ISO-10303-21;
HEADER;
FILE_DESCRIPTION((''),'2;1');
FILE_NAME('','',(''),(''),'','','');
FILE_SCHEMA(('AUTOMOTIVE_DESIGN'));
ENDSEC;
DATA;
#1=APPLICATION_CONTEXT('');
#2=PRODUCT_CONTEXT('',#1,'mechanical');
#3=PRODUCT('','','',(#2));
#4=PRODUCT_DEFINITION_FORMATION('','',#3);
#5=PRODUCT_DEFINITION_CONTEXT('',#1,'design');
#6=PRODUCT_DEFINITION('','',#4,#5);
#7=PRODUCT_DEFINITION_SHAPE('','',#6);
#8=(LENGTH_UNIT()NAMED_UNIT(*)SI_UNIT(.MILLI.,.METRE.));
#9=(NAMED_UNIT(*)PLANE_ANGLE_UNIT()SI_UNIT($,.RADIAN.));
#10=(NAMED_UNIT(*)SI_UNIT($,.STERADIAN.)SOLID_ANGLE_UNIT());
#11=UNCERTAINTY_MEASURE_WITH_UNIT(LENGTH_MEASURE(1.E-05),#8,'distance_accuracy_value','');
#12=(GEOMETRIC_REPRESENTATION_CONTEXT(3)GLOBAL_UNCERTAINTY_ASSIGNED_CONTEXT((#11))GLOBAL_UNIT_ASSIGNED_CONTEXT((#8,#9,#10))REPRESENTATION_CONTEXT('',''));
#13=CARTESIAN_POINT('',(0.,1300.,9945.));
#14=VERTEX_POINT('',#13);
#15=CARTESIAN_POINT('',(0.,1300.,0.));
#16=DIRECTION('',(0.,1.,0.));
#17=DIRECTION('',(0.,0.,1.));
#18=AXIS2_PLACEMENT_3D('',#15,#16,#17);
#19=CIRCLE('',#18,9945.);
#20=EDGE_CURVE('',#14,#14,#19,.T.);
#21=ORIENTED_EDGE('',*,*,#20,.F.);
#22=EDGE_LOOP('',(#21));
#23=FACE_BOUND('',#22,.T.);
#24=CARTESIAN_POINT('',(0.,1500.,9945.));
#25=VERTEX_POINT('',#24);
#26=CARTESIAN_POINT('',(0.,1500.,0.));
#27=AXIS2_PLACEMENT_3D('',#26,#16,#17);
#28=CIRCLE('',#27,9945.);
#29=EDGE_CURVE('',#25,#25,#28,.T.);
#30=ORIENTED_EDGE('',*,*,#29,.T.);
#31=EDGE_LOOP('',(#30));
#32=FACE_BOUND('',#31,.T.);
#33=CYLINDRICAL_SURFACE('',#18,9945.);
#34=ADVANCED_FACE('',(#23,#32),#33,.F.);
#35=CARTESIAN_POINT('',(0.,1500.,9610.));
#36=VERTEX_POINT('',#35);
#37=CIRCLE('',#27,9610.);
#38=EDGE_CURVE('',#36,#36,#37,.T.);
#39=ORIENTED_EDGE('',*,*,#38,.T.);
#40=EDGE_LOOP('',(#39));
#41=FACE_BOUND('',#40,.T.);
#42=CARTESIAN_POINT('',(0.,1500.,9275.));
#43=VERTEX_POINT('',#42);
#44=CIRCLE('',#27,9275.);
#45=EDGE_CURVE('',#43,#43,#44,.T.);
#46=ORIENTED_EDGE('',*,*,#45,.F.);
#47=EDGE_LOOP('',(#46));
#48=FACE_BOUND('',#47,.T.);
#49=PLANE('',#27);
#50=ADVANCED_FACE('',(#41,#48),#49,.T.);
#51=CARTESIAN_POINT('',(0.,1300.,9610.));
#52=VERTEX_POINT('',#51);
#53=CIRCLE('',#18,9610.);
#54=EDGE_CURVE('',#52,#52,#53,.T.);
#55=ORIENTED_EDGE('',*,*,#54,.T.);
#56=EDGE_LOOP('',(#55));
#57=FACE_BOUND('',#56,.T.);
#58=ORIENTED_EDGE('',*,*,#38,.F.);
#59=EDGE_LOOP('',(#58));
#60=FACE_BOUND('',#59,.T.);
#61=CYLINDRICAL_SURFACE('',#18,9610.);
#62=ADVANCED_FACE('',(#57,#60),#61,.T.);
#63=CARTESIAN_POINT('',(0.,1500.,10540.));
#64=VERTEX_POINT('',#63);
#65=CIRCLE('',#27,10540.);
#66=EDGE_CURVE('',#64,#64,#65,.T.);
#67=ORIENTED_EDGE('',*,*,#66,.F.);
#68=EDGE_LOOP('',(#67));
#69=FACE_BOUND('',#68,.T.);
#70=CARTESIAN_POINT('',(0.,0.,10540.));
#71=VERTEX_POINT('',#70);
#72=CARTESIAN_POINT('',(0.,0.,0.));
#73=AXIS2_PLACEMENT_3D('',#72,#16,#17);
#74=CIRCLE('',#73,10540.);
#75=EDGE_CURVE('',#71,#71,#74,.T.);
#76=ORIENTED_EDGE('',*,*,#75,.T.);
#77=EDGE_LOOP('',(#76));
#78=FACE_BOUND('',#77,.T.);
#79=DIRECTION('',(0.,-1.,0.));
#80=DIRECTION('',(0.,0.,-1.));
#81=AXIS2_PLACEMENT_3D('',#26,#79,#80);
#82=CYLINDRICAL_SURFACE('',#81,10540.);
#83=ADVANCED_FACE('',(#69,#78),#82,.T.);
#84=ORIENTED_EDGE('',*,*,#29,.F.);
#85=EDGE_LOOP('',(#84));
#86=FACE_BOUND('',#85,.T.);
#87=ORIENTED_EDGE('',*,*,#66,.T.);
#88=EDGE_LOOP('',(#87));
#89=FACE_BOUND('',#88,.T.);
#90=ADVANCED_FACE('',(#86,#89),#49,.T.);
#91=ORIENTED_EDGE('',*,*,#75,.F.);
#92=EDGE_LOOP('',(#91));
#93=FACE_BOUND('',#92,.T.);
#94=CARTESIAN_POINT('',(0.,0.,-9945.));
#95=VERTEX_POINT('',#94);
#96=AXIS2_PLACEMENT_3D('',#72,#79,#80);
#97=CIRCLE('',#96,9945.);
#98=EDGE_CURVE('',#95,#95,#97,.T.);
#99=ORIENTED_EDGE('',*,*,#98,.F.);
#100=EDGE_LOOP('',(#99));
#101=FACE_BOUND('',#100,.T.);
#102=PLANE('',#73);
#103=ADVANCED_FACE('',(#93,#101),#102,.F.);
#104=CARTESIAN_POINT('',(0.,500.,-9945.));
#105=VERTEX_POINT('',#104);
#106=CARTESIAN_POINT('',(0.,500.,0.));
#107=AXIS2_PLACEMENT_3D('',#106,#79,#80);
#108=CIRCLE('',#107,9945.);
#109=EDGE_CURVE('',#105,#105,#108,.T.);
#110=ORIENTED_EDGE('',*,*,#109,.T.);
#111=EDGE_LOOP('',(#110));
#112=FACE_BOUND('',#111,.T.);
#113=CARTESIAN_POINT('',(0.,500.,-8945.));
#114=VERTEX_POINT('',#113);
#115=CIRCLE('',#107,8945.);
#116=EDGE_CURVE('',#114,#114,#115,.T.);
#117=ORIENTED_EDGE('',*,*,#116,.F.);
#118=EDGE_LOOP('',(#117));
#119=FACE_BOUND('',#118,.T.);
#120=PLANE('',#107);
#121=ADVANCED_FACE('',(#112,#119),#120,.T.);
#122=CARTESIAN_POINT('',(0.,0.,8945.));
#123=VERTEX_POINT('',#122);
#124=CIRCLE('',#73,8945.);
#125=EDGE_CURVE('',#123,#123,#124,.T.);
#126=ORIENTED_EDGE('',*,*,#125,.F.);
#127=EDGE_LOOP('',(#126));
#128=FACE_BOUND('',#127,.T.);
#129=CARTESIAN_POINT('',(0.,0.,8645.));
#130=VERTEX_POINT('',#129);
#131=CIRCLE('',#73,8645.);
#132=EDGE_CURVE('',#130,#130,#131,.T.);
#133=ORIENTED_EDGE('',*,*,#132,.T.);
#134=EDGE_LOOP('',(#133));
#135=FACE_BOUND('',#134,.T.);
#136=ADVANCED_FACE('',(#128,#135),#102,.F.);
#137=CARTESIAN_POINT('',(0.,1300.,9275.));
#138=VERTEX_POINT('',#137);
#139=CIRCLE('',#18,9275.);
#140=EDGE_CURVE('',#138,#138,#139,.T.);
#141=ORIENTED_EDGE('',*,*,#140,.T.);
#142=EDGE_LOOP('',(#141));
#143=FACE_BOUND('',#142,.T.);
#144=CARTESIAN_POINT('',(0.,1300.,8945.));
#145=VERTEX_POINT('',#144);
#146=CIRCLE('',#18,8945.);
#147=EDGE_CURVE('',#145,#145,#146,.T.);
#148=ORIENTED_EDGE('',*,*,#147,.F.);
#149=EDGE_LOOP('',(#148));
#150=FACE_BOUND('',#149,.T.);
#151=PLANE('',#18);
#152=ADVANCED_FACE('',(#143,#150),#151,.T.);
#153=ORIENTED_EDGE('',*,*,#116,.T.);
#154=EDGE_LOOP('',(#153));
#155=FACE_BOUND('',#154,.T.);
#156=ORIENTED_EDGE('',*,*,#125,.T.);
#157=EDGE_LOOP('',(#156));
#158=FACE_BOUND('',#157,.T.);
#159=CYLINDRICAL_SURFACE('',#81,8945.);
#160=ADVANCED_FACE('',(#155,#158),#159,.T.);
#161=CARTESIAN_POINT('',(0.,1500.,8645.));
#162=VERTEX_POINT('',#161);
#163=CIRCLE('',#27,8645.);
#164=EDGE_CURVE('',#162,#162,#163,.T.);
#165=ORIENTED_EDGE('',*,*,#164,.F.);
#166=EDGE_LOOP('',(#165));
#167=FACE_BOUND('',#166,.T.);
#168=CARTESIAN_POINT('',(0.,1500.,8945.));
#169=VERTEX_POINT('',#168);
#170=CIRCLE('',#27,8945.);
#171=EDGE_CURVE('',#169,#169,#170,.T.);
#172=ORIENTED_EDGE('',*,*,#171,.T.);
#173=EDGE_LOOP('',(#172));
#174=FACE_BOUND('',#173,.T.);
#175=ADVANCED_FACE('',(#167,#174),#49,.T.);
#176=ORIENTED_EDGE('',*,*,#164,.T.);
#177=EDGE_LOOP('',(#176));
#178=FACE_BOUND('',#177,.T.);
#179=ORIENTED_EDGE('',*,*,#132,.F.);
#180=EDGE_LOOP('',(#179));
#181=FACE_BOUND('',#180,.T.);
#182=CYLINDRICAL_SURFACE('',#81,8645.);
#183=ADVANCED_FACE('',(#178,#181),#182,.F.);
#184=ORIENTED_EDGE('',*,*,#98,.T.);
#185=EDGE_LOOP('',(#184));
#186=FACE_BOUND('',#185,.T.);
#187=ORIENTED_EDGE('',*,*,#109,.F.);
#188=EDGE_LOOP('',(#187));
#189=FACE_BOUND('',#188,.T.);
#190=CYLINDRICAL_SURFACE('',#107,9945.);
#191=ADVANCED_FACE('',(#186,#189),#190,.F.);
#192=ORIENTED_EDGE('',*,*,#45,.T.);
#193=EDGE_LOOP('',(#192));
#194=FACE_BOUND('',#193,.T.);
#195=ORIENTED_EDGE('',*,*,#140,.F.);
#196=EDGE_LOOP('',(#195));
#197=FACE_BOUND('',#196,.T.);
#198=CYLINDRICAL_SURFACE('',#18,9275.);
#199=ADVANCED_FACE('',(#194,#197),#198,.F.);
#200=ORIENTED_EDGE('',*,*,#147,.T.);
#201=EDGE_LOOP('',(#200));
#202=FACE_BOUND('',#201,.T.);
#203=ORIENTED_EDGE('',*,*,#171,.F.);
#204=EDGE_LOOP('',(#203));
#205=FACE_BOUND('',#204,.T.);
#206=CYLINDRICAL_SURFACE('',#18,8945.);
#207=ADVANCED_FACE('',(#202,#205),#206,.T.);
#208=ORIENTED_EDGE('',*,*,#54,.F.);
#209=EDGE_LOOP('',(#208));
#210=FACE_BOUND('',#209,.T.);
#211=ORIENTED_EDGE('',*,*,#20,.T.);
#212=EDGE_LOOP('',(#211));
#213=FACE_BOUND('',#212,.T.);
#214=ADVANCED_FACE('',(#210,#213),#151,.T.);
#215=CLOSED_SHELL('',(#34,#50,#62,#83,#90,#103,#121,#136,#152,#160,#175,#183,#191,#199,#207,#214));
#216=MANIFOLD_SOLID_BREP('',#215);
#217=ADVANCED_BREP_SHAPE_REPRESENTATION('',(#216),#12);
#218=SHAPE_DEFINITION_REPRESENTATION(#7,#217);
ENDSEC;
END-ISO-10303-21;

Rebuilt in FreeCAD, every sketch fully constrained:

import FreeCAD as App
import Part
import Sketcher

V = App.Vector

doc = App.newDocument("Part")
params = doc.addObject("Spreadsheet::Sheet", "Params")
for row, (alias, value) in enumerate([
    ("sketch1_diameter", "19890 mm"),
    ("sketch1_diameter2", "17890 mm"),
    ("pad1_length", "600 mm"),
    ("sketch2_diameter", "21080 mm"),
    ("sketch2_diameter2", "17890 mm"),
    ("pad2_length", "1500 mm"),
    ("sketch3_diameter", "19890 mm"),
    ("sketch3_diameter2", "17890 mm"),
    ("pocket1_length", "500 mm"),
    ("sketch4_diameter", "17890 mm"),
    ("sketch4_diameter2", "17290 mm"),
    ("pad3_length", "1500 mm"),
    ("sketch5_diameter", "18550 mm"),
    ("sketch5_diameter2", "17890 mm"),
    ("pocket2_length", "200 mm"),
    ("sketch6_diameter", "19890 mm"),
    ("sketch6_diameter2", "19220 mm"),
    ("pocket3_length", "200 mm"),
], start=1):
    params.set(f"A{row}", alias)
    params.set(f"B{row}", "=" + value)
    params.setAlias(f"B{row}", alias)

body = doc.addObject("PartDesign::Body", "Body")

# Sketch on XZ plane
sketch1 = body.newObject("Sketcher::SketchObject", "Sketch")
sketch1.AttachmentSupport = (doc.getObject("XZ_Plane"), [""])
sketch1.MapMode = "FlatFace"
sketch1.addGeometry([
    Part.Circle(V(0, 0, 0), V(0, 0, 1), 9945),
    Part.Circle(V(0, 0, 0), V(0, 0, 1), 8945),
], False)
sketch1.addConstraint([
    Sketcher.Constraint("Coincident", 0, 3, -1, 1),
    Sketcher.Constraint("Coincident", 1, 3, -1, 1),
    Sketcher.Constraint("Diameter", 0, 19890.0),
    Sketcher.Constraint("Diameter", 1, 17890.0),
])
sketch1.setExpression("Constraints[2]", "Params.sketch1_diameter")
sketch1.setExpression("Constraints[3]", "Params.sketch1_diameter2")
pad1 = body.newObject("PartDesign::Pad", "Pad")
pad1.Profile = sketch1
pad1.setExpression("Length", "Params.pad1_length")
pad1.Reversed = True

# Sketch on XZ plane
sketch2 = body.newObject("Sketcher::SketchObject", "Sketch001")
sketch2.AttachmentSupport = (doc.getObject("XZ_Plane"), [""])
sketch2.MapMode = "FlatFace"
sketch2.addGeometry([
    Part.Circle(V(0, 0, 0), V(0, 0, 1), 10540),
    Part.Circle(V(0, 0, 0), V(0, 0, 1), 8945),
], False)
sketch2.addConstraint([
    Sketcher.Constraint("Coincident", 0, 3, -1, 1),
    Sketcher.Constraint("Coincident", 1, 3, -1, 1),
    Sketcher.Constraint("Diameter", 0, 21080.0),
    Sketcher.Constraint("Diameter", 1, 17890.0),
])
sketch2.setExpression("Constraints[2]", "Params.sketch2_diameter")
sketch2.setExpression("Constraints[3]", "Params.sketch2_diameter2")
pad2 = body.newObject("PartDesign::Pad", "Pad001")
pad2.Profile = sketch2
pad2.setExpression("Length", "Params.pad2_length")
pad2.Reversed = True

# Sketch on XZ plane
sketch3 = body.newObject("Sketcher::SketchObject", "Sketch002")
sketch3.AttachmentSupport = (doc.getObject("XZ_Plane"), [""])
sketch3.MapMode = "FlatFace"
sketch3.addGeometry([
    Part.Circle(V(0, 0, 0), V(0, 0, 1), 9945),
    Part.Circle(V(0, 0, 0), V(0, 0, 1), 8945),
], False)
sketch3.addConstraint([
    Sketcher.Constraint("Coincident", 0, 3, -1, 1),
    Sketcher.Constraint("Coincident", 1, 3, -1, 1),
    Sketcher.Constraint("Diameter", 0, 19890.0),
    Sketcher.Constraint("Diameter", 1, 17890.0),
])
sketch3.setExpression("Constraints[2]", "Params.sketch3_diameter")
sketch3.setExpression("Constraints[3]", "Params.sketch3_diameter2")
pocket1 = body.newObject("PartDesign::Pocket", "Pocket")
pocket1.Profile = sketch3
pocket1.setExpression("Length", "Params.pocket1_length")

# Sketch on XZ plane
sketch4 = body.newObject("Sketcher::SketchObject", "Sketch003")
sketch4.AttachmentSupport = (doc.getObject("XZ_Plane"), [""])
sketch4.MapMode = "FlatFace"
sketch4.addGeometry([
    Part.Circle(V(0, 0, 0), V(0, 0, 1), 8945),
    Part.Circle(V(0, 0, 0), V(0, 0, 1), 8645),
], False)
sketch4.addConstraint([
    Sketcher.Constraint("Coincident", 0, 3, -1, 1),
    Sketcher.Constraint("Coincident", 1, 3, -1, 1),
    Sketcher.Constraint("Diameter", 0, 17890.0),
    Sketcher.Constraint("Diameter", 1, 17290.0),
])
sketch4.setExpression("Constraints[2]", "Params.sketch4_diameter")
sketch4.setExpression("Constraints[3]", "Params.sketch4_diameter2")
pad3 = body.newObject("PartDesign::Pad", "Pad002")
pad3.Profile = sketch4
pad3.setExpression("Length", "Params.pad3_length")
pad3.Reversed = True

# Sketch on XZ plane
sketch5 = body.newObject("Sketcher::SketchObject", "Sketch004")
sketch5.AttachmentSupport = (doc.getObject("XZ_Plane"), [""])
sketch5.MapMode = "FlatFace"
sketch5.AttachmentOffset = App.Placement(V(0, 0, -1300), App.Rotation())
sketch5.addGeometry([
    Part.Circle(V(0, 0, 0), V(0, 0, 1), 9275),
    Part.Circle(V(0, 0, 0), V(0, 0, 1), 8945),
], False)
sketch5.addConstraint([
    Sketcher.Constraint("Coincident", 0, 3, -1, 1),
    Sketcher.Constraint("Coincident", 1, 3, -1, 1),
    Sketcher.Constraint("Diameter", 0, 18550.0),
    Sketcher.Constraint("Diameter", 1, 17890.0),
])
sketch5.setExpression("Constraints[2]", "Params.sketch5_diameter")
sketch5.setExpression("Constraints[3]", "Params.sketch5_diameter2")
pocket2 = body.newObject("PartDesign::Pocket", "Pocket001")
pocket2.Profile = sketch5
pocket2.setExpression("Length", "Params.pocket2_length")

# Sketch on XZ plane
sketch6 = body.newObject("Sketcher::SketchObject", "Sketch005")
sketch6.AttachmentSupport = (doc.getObject("XZ_Plane"), [""])
sketch6.MapMode = "FlatFace"
sketch6.AttachmentOffset = App.Placement(V(0, 0, -1300), App.Rotation())
sketch6.addGeometry([
    Part.Circle(V(0, 0, 0), V(0, 0, 1), 9945),
    Part.Circle(V(0, 0, 0), V(0, 0, 1), 9610),
], False)
sketch6.addConstraint([
    Sketcher.Constraint("Coincident", 0, 3, -1, 1),
    Sketcher.Constraint("Coincident", 1, 3, -1, 1),
    Sketcher.Constraint("Diameter", 0, 19890.0),
    Sketcher.Constraint("Diameter", 1, 19220.0),
])
sketch6.setExpression("Constraints[2]", "Params.sketch6_diameter")
sketch6.setExpression("Constraints[3]", "Params.sketch6_diameter2")
pocket3 = body.newObject("PartDesign::Pocket", "Pocket002")
pocket3.Profile = sketch6
pocket3.setExpression("Length", "Params.pocket3_length")

doc.recompute()
